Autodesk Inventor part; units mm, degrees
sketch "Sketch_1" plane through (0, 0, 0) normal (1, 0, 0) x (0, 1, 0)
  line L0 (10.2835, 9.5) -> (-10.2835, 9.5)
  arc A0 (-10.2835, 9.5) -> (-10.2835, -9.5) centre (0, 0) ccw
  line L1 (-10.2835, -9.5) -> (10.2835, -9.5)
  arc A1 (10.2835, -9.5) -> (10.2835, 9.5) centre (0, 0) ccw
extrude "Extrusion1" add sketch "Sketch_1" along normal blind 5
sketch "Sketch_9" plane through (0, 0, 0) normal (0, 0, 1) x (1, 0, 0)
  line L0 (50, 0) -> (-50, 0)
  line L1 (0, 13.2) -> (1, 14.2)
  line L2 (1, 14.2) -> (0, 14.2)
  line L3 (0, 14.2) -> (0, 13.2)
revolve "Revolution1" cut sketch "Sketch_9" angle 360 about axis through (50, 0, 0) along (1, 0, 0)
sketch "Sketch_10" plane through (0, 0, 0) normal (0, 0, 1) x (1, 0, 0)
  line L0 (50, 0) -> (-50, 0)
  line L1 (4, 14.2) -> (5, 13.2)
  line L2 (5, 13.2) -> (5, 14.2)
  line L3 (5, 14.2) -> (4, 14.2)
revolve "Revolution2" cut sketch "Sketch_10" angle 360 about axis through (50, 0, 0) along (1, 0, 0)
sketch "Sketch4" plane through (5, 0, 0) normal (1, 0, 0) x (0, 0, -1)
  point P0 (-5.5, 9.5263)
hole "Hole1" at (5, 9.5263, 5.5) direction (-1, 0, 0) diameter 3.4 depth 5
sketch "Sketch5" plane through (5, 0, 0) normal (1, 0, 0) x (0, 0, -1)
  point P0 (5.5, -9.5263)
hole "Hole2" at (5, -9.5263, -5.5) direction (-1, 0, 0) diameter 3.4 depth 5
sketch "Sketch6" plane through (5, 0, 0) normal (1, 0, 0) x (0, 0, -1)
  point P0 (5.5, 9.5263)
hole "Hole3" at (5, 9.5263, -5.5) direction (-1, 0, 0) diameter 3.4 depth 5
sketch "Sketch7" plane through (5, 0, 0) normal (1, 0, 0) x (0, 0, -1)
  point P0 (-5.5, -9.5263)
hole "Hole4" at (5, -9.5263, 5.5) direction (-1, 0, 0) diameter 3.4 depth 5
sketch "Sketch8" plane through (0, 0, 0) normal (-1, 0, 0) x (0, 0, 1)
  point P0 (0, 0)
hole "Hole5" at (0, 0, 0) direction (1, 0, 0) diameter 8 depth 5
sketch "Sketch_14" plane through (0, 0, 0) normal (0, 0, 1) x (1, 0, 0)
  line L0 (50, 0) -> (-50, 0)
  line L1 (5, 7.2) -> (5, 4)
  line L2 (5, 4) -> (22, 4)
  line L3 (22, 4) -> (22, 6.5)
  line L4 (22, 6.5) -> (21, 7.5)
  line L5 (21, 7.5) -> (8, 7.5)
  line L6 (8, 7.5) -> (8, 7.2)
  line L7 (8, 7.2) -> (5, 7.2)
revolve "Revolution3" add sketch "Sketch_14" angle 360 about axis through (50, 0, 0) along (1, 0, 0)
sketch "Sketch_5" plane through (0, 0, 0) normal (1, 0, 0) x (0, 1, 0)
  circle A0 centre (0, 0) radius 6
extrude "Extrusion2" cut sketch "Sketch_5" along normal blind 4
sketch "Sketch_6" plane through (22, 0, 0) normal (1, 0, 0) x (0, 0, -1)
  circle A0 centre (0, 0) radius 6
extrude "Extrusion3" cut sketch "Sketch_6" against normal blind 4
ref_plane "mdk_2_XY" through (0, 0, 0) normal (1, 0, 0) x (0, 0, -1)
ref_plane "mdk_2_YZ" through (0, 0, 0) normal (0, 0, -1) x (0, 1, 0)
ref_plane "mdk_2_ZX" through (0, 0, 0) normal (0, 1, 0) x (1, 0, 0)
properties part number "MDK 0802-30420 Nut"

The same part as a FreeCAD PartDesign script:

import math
import FreeCAD as App
import Part
import Sketcher

V = App.Vector
Q = App.Units.Quantity

doc = App.newDocument("Part")
body = doc.addObject("PartDesign::Body", "Body")

# Sketch on YZ plane
sketch1 = body.newObject("Sketcher::SketchObject", "Sketch")
sketch1.AttachmentSupport = (doc.getObject("YZ_Plane"), [""])
sketch1.MapMode = "FlatFace"
sketch1.addGeometry([
    Part.ArcOfCircle(Part.Circle(V(0, 0, 0), V(0, 0, 1), 14.000013), math.radians(-42.73206), math.radians(42.73206)),
    Part.LineSegment(V(10.2835, 9.5, 0), V(-10.2835, 9.5, 0)),
    Part.ArcOfCircle(Part.Circle(V(0, 0, 0), V(0, 0, 1), 14.000013), math.radians(137.26794), math.radians(222.73206)),
    Part.LineSegment(V(-10.2835, -9.5, 0), V(10.2835, -9.5, 0)),
], False)
sketch1.addConstraint([
    Sketcher.Constraint("Coincident", 0, 2, 1, 1),
    Sketcher.Constraint("Coincident", 1, 2, 2, 1),
    Sketcher.Constraint("Coincident", 2, 2, 3, 1),
    Sketcher.Constraint("Coincident", 3, 2, 0, 1),
    Sketcher.Constraint("Horizontal", 1),
    Sketcher.Constraint("Horizontal", 3),
    Sketcher.Constraint("Coincident", 0, 3, -1, 1),
    Sketcher.Constraint("Coincident", 2, 3, -1, 1),
    Sketcher.Constraint("Equal", 0, 2),
    Sketcher.Constraint("Vertical", 1, 2, 2, 2),
    Sketcher.Constraint("Radius", 0, Q("14 mm")),
    Sketcher.Constraint("DistanceY", 2, 2, 1, 2, Q("19 mm")),
])
pad1 = body.newObject("PartDesign::Pad", "Pad")
pad1.Profile = sketch1
pad1.Length = 5

# Sketch on XY plane
sketch2 = body.newObject("Sketcher::SketchObject", "Sketch001")
sketch2.AttachmentSupport = (doc.getObject("XY_Plane"), [""])
sketch2.MapMode = "FlatFace"
sketch2.addGeometry([
    Part.LineSegment(V(0, 14.2, 0), V(0, 13.2, 0)),
    Part.LineSegment(V(0, 13.2, 0), V(1, 14.2, 0)),
    Part.LineSegment(V(1, 14.2, 0), V(0, 14.2, 0)),
], False)
sketch2.addConstraint([
    Sketcher.Constraint("Coincident", 0, 2, 1, 1),
    Sketcher.Constraint("Coincident", 1, 2, 2, 1),
    Sketcher.Constraint("Coincident", 2, 2, 0, 1),
    Sketcher.Constraint("Vertical", 0),
    Sketcher.Constraint("Horizontal", 2),
    Sketcher.Constraint("PointOnObject", 0, 2, -2),
    Sketcher.Constraint("Equal", 2, 0),
    Sketcher.Constraint("DistanceX", 2, 2, 2, 1, Q("1 mm")),
    Sketcher.Constraint("DistanceY", -1, 1, 0, 2, Q("13.2 mm")),
])
groove = body.newObject("PartDesign::Groove", "Groove")
groove.Profile = sketch2
groove.ReferenceAxis = (sketch2, ["H_Axis"])
groove.Angle = 360

# Sketch on XY plane
sketch3 = body.newObject("Sketcher::SketchObject", "Sketch002")
sketch3.AttachmentSupport = (doc.getObject("XY_Plane"), [""])
sketch3.MapMode = "FlatFace"
sketch3.addGeometry([
    Part.LineSegment(V(5, 14.2, 0), V(4, 14.2, 0)),
    Part.LineSegment(V(4, 14.2, 0), V(5, 13.2, 0)),
    Part.LineSegment(V(5, 13.2, 0), V(5, 14.2, 0)),
], False)
sketch3.addConstraint([
    Sketcher.Constraint("Coincident", 0, 2, 1, 1),
    Sketcher.Constraint("Coincident", 1, 2, 2, 1),
    Sketcher.Constraint("Coincident", 2, 2, 0, 1),
    Sketcher.Constraint("Horizontal", 0),
    Sketcher.Constraint("Vertical", 2),
    Sketcher.Constraint("Equal", 0, 2),
    Sketcher.Constraint("DistanceX", 0, 2, 0, 1, Q("1 mm")),
    Sketcher.Constraint("DistanceX", -1, 1, 0, 2, Q("4 mm")),
    Sketcher.Constraint("DistanceY", -1, 1, 0, 2, Q("14.2 mm")),
])
groove2 = body.newObject("PartDesign::Groove", "Groove001")
groove2.Profile = sketch3
groove2.ReferenceAxis = (sketch3, ["H_Axis"])
groove2.Angle = 360

# Sketch on YZ plane
sketch4 = body.newObject("Sketcher::SketchObject", "Sketch003")
sketch4.AttachmentSupport = (doc.getObject("YZ_Plane"), [""])
sketch4.MapMode = "FlatFace"
sketch4.AttachmentOffset = App.Placement(V(0, 0, 5), App.Rotation())
sketch4.addGeometry(Part.Circle(V(9.5263, 5.5, 0), V(0, 0, 1), 1.7), False)
sketch4.addConstraint([
    Sketcher.Constraint("Diameter", 0, Q("3.4 mm")),
    Sketcher.Constraint("DistanceY", -1, 1, 0, 3, Q("5.5 mm")),
    Sketcher.Constraint("DistanceX", -1, 1, 0, 3, Q("9.5263 mm")),
])
doc.recompute()
hole = body.newObject("PartDesign::Hole", "Hole")
hole.Profile = sketch4
hole.ThreadType = "None"
hole.Diameter = 3.4
hole.DepthType = "Dimension"
hole.Depth = 5
hole.DrillPoint = "Flat"

# Sketch on YZ plane
sketch5 = body.newObject("Sketcher::SketchObject", "Sketch004")
sketch5.AttachmentSupport = (doc.getObject("YZ_Plane"), [""])
sketch5.MapMode = "FlatFace"
sketch5.AttachmentOffset = App.Placement(V(0, 0, 5), App.Rotation())
sketch5.addGeometry(Part.Circle(V(-9.5263, -5.5, 0), V(0, 0, 1), 1.7), False)
sketch5.addConstraint([
    Sketcher.Constraint("Diameter", 0, Q("3.4 mm")),
    Sketcher.Constraint("DistanceY", 0, 3, -1, 1, Q("5.5 mm")),
    Sketcher.Constraint("DistanceX", 0, 3, -1, 1, Q("9.5263 mm")),
])
doc.recompute()
hole2 = body.newObject("PartDesign::Hole", "Hole001")
hole2.Profile = sketch5
hole2.ThreadType = "None"
hole2.Diameter = 3.4
hole2.DepthType = "Dimension"
hole2.Depth = 5
hole2.DrillPoint = "Flat"

# Sketch on YZ plane
sketch6 = body.newObject("Sketcher::SketchObject", "Sketch005")
sketch6.AttachmentSupport = (doc.getObject("YZ_Plane"), [""])
sketch6.MapMode = "FlatFace"
sketch6.AttachmentOffset = App.Placement(V(0, 0, 5), App.Rotation())
sketch6.addGeometry(Part.Circle(V(9.5263, -5.5, 0), V(0, 0, 1), 1.7), False)
sketch6.addConstraint([
    Sketcher.Constraint("Diameter", 0, Q("3.4 mm")),
    Sketcher.Constraint("DistanceY", 0, 3, -1, 1, Q("5.5 mm")),
    Sketcher.Constraint("DistanceX", -1, 1, 0, 3, Q("9.5263 mm")),
])
doc.recompute()
hole3 = body.newObject("PartDesign::Hole", "Hole002")
hole3.Profile = sketch6
hole3.ThreadType = "None"
hole3.Diameter = 3.4
hole3.DepthType = "Dimension"
hole3.Depth = 5
hole3.DrillPoint = "Flat"

# Sketch on YZ plane
sketch7 = body.newObject("Sketcher::SketchObject", "Sketch006")
sketch7.AttachmentSupport = (doc.getObject("YZ_Plane"), [""])
sketch7.MapMode = "FlatFace"
sketch7.AttachmentOffset = App.Placement(V(0, 0, 5), App.Rotation())
sketch7.addGeometry(Part.Circle(V(-9.5263, 5.5, 0), V(0, 0, 1), 1.7), False)
sketch7.addConstraint([
    Sketcher.Constraint("Diameter", 0, Q("3.4 mm")),
    Sketcher.Constraint("DistanceY", -1, 1, 0, 3, Q("5.5 mm")),
    Sketcher.Constraint("DistanceX", 0, 3, -1, 1, Q("9.5263 mm")),
])
doc.recompute()
hole4 = body.newObject("PartDesign::Hole", "Hole003")
hole4.Profile = sketch7
hole4.ThreadType = "None"
hole4.Diameter = 3.4
hole4.DepthType = "Dimension"
hole4.Depth = 5
hole4.DrillPoint = "Flat"

# Sketch on YZ plane
sketch8 = body.newObject("Sketcher::SketchObject", "Sketch007")
sketch8.AttachmentSupport = (doc.getObject("YZ_Plane"), [""])
sketch8.MapMode = "FlatFace"
sketch8.addGeometry(Part.Circle(V(0, 0, 0), V(0, 0, 1), 4), False)
sketch8.addConstraint([
    Sketcher.Constraint("Coincident", 0, 3, -1, 1),
    Sketcher.Constraint("Diameter", 0, Q("8 mm")),
])
doc.recompute()
hole5 = body.newObject("PartDesign::Hole", "Hole004")
hole5.Profile = sketch8
hole5.ThreadType = "None"
hole5.Diameter = 8
hole5.DepthType = "Dimension"
hole5.Depth = 5
hole5.DrillPoint = "Flat"
hole5.Reversed = True

# Sketch on XY plane
sketch9 = body.newObject("Sketcher::SketchObject", "Sketch008")
sketch9.AttachmentSupport = (doc.getObject("XY_Plane"), [""])
sketch9.MapMode = "FlatFace"
sketch9.addGeometry([
    Part.LineSegment(V(8, 7.2, 0), V(5, 7.2, 0)),  # 0
    Part.LineSegment(V(5, 7.2, 0), V(5, 4, 0)),  # 1
    Part.LineSegment(V(5, 4, 0), V(22, 4, 0)),  # 2
    Part.LineSegment(V(22, 4, 0), V(22, 6.5, 0)),  # 3
    Part.LineSegment(V(22, 6.5, 0), V(21, 7.5, 0)),  # 4
    Part.LineSegment(V(21, 7.5, 0), V(8, 7.5, 0)),  # 5
    Part.LineSegment(V(8, 7.5, 0), V(8, 7.2, 0)),  # 6
], False)
sketch9.addConstraint([
    Sketcher.Constraint("Coincident", 0, 2, 1, 1),
    Sketcher.Constraint("Coincident", 1, 2, 2, 1),
    Sketcher.Constraint("Coincident", 2, 2, 3, 1),
    Sketcher.Constraint("Coincident", 3, 2, 4, 1),
    Sketcher.Constraint("Coincident", 4, 2, 5, 1),
    Sketcher.Constraint("Coincident", 5, 2, 6, 1),
    Sketcher.Constraint("Coincident", 6, 2, 0, 1),
    Sketcher.Constraint("Horizontal", 0),
    Sketcher.Constraint("Vertical", 1),
    Sketcher.Constraint("Horizontal", 2),
    Sketcher.Constraint("Vertical", 3),
    Sketcher.Constraint("Horizontal", 5),
    Sketcher.Constraint("Vertical", 6),
    Sketcher.Constraint("DistanceX", 0, 2, 0, 1, Q("3 mm")),
    Sketcher.Constraint("DistanceX", 2, 1, 2, 2, Q("17 mm")),
    Sketcher.Constraint("DistanceX", 5, 2, 5, 1, Q("13 mm")),
    Sketcher.Constraint("Angle", 4, Q("135 deg")),
    Sketcher.Constraint("DistanceY", 1, 2, 1, 1, Q("3.2 mm")),
    Sketcher.Constraint("DistanceY", 3, 1, 3, 2, Q("2.5 mm")),
    Sketcher.Constraint("DistanceX", -1, 1, 0, 2, Q("5 mm")),
    Sketcher.Constraint("DistanceY", -1, 1, 1, 2, Q("4 mm")),
])
revolution = body.newObject("PartDesign::Revolution", "Revolution")
revolution.Profile = sketch9
revolution.ReferenceAxis = (sketch9, ["H_Axis"])
revolution.Angle = 360

# Sketch on YZ plane
sketch10 = body.newObject("Sketcher::SketchObject", "Sketch009")
sketch10.AttachmentSupport = (doc.getObject("YZ_Plane"), [""])
sketch10.MapMode = "FlatFace"
sketch10.addGeometry(Part.Circle(V(0, 0, 0), V(0, 0, 1), 6), False)
sketch10.addConstraint([
    Sketcher.Constraint("Coincident", 0, 3, -1, 1),
    Sketcher.Constraint("Diameter", 0, Q("12 mm")),
])
pocket1 = body.newObject("PartDesign::Pocket", "Pocket")
pocket1.Profile = sketch10
pocket1.Length = 4
pocket1.Reversed = True

# Sketch on YZ plane
sketch11 = body.newObject("Sketcher::SketchObject", "Sketch010")
sketch11.AttachmentSupport = (doc.getObject("YZ_Plane"), [""])
sketch11.MapMode = "FlatFace"
sketch11.AttachmentOffset = App.Placement(V(0, 0, 22), App.Rotation())
sketch11.addGeometry(Part.Circle(V(0, 0, 0), V(0, 0, 1), 6), False)
sketch11.addConstraint([
    Sketcher.Constraint("Coincident", 0, 3, -1, 1),
    Sketcher.Constraint("Diameter", 0, Q("12 mm")),
])
pocket2 = body.newObject("PartDesign::Pocket", "Pocket001")
pocket2.Profile = sketch11
pocket2.Length = 4

doc.recompute()
